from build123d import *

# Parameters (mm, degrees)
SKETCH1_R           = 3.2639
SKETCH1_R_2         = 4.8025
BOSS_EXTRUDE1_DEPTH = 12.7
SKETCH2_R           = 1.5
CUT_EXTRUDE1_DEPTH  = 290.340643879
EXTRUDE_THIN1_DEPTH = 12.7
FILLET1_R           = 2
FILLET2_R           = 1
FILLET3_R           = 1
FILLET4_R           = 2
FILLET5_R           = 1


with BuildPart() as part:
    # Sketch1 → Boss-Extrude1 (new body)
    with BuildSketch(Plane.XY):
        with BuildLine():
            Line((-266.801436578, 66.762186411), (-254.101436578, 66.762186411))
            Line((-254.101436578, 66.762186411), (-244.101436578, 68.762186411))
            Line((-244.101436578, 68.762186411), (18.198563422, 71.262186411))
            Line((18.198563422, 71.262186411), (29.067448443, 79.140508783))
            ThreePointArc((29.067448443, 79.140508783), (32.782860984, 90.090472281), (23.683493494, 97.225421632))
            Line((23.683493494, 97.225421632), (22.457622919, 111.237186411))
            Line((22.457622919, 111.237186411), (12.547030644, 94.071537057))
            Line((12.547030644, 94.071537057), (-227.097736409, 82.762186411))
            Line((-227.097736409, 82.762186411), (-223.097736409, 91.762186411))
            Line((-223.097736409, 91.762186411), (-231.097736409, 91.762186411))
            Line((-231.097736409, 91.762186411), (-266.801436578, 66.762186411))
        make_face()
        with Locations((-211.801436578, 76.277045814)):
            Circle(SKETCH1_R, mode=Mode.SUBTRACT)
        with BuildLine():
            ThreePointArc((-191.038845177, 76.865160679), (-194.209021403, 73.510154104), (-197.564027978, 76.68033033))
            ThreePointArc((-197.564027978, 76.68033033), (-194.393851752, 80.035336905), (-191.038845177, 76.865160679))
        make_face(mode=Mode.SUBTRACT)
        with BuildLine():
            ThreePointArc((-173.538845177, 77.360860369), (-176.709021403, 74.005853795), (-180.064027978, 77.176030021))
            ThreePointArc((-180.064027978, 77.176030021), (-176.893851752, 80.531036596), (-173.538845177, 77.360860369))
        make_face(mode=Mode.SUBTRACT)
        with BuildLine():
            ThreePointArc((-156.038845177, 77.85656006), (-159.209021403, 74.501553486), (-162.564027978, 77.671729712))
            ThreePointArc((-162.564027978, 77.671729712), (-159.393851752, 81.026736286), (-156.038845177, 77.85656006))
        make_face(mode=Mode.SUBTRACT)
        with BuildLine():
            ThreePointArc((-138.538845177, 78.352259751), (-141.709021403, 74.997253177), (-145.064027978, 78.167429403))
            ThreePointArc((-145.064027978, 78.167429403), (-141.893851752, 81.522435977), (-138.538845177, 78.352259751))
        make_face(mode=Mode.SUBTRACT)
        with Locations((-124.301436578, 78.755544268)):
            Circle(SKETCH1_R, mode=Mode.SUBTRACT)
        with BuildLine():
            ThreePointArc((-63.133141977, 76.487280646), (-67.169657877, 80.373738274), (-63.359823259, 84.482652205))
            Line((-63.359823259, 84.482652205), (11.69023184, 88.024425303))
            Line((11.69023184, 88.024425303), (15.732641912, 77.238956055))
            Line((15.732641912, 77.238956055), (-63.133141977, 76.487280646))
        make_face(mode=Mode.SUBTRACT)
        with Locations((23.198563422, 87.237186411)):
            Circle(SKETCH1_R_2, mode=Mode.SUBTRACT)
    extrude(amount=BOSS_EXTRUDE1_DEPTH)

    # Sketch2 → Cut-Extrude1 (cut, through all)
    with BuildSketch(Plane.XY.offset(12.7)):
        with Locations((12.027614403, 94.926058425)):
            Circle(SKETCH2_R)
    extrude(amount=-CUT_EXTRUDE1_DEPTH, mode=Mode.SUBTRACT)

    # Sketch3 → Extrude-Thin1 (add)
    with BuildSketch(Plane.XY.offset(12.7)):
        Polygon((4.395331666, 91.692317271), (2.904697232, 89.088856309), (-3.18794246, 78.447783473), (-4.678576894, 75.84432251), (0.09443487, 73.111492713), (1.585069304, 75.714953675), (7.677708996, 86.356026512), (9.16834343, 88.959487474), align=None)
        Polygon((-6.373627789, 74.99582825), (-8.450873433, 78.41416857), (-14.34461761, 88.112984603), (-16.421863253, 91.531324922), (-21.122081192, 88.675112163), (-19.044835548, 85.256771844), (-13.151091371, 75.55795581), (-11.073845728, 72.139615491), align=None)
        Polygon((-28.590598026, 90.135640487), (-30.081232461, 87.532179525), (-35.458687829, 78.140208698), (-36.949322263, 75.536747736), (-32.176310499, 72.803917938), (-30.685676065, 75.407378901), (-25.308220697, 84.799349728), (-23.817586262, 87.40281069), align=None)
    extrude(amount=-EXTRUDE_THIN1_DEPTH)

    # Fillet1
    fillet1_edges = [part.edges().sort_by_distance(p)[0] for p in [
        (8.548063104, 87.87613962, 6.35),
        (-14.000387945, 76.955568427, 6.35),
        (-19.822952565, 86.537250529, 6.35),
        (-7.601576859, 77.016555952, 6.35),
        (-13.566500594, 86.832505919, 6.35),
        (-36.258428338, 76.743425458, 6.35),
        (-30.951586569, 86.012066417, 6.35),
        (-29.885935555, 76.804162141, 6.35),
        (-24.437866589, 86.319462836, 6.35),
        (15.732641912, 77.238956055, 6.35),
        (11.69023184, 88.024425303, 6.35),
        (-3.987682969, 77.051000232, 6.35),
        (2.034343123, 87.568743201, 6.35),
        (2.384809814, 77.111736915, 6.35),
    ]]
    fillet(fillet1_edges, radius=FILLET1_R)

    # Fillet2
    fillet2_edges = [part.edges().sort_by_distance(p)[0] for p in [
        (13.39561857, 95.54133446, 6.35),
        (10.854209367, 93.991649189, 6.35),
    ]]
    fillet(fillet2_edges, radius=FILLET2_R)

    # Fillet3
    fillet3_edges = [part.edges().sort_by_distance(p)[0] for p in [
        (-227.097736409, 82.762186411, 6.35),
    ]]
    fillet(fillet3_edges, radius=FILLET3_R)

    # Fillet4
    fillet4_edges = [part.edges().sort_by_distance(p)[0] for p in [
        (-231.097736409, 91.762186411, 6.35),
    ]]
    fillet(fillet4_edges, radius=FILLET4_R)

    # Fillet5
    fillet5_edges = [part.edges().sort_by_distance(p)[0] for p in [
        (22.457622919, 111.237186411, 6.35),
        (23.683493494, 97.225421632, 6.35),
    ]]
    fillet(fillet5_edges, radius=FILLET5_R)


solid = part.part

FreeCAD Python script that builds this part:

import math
import FreeCAD as App
import Part
import Sketcher
Q = App.Units.Quantity


def edges_at(feature, points):
    """Names of the edges that pass closest to the given points."""
    edges = feature.Shape.Edges
    near = lambda p: min(range(len(edges)), key=lambda i: edges[i].distToShape(Part.Vertex(*p))[0])
    return sorted({f"Edge{near(p) + 1}" for p in points})

doc = App.newDocument("Part")
body = doc.addObject("PartDesign::Body", "Body")

sketch1 = body.newObject("Sketcher::SketchObject", "Sketch")
sketch1.AttachmentSupport = (doc.getObject("XY_Plane"), [""])
sketch1.MapMode = "FlatFace"
sketch1.addGeometry([
    Part.LineSegment(App.Vector(-266.801437, 66.762186, 0), App.Vector(-254.101437, 66.762186, 0)),
    Part.LineSegment(App.Vector(-254.101437, 66.762186, 0), App.Vector(-244.101437, 68.762186, 0)),
    Part.LineSegment(App.Vector(-244.101437, 68.762186, 0), App.Vector(18.198563, 71.262186, 0)),
    Part.LineSegment(App.Vector(18.198563, 71.262186, 0), App.Vector(29.067448, 79.140509, 0)),
    Part.ArcOfCircle(Part.Circle(App.Vector(23.198563, 87.237186, 0), App.Vector(0, 0, 1), 10), math.radians(-54.063484), math.radians(87.220465)),
    Part.LineSegment(App.Vector(23.683493, 97.225422, 0), App.Vector(22.457623, 111.237186, 0)),
    Part.LineSegment(App.Vector(22.457623, 111.237186, 0), App.Vector(12.547031, 94.071537, 0)),
    Part.LineSegment(App.Vector(12.547031, 94.071537, 0), App.Vector(-227.097736, 82.762186, 0)),
    Part.LineSegment(App.Vector(-227.097736, 82.762186, 0), App.Vector(-223.097736, 91.762186, 0)),
    Part.LineSegment(App.Vector(-223.097736, 91.762186, 0), App.Vector(-231.097736, 91.762186, 0)),
    Part.LineSegment(App.Vector(-231.097736, 91.762186, 0), App.Vector(-266.801437, 66.762186, 0)),
    Part.Circle(App.Vector(-211.801437, 76.277046, 0), App.Vector(0, 0, 1), 3.2639),
    Part.Circle(App.Vector(-194.301437, 76.772746, 0), App.Vector(0, 0, 1), 3.2639),
    Part.ArcOfCircle(Part.Circle(App.Vector(-176.801437, 77.268445, 0), App.Vector(0, 0, 1), 3.2639), math.radians(1.622509), math.radians(181.622509)),
    Part.ArcOfCircle(Part.Circle(App.Vector(-176.801437, 77.268445, 0), App.Vector(0, 0, 1), 3.2639), math.radians(-178.377491), math.radians(1.622509)),
    Part.ArcOfCircle(Part.Circle(App.Vector(-159.301437, 77.764145, 0), App.Vector(0, 0, 1), 3.2639), math.radians(1.622509), math.radians(181.622509)),
    Part.ArcOfCircle(Part.Circle(App.Vector(-159.301437, 77.764145, 0), App.Vector(0, 0, 1), 3.2639), math.radians(-178.377491), math.radians(1.622509)),
    Part.ArcOfCircle(Part.Circle(App.Vector(-141.801437, 78.259845, 0), App.Vector(0, 0, 1), 3.2639), math.radians(1.622509), math.radians(181.622509)),
    Part.ArcOfCircle(Part.Circle(App.Vector(-141.801437, 78.259845, 0), App.Vector(0, 0, 1), 3.2639), math.radians(-178.377491), math.radians(1.622509)),
    Part.Circle(App.Vector(-124.301437, 78.755544, 0), App.Vector(0, 0, 1), 3.2639),
    Part.LineSegment(App.Vector(15.732642, 77.238956, 0), App.Vector(-63.133142, 76.487281, 0)),
    Part.ArcOfCircle(Part.Circle(App.Vector(-63.171265, 80.487099, 0), App.Vector(0, 0, 1), 4), math.radians(92.701906), math.radians(270.546074)),
    Part.LineSegment(App.Vector(-63.359823, 84.482652, 0), App.Vector(11.690232, 88.024425, 0)),
    Part.LineSegment(App.Vector(11.690232, 88.024425, 0), App.Vector(15.732642, 77.238956, 0)),
    Part.Circle(App.Vector(23.198563, 87.237186, 0), App.Vector(0, 0, 1), 4.8025),
], False)
sketch1.addConstraint([
    Sketcher.Constraint("Coincident", 0, 2, 1, 1),
    Sketcher.Constraint("Coincident", 1, 2, 2, 1),
    Sketcher.Constraint("Coincident", 2, 2, 3, 1),
    Sketcher.Constraint("Tangent", 3, 2, 4, 1),
    Sketcher.Constraint("Coincident", 4, 2, 5, 1),
    Sketcher.Constraint("Coincident", 5, 2, 6, 1),
    Sketcher.Constraint("Coincident", 6, 2, 7, 1),
    Sketcher.Constraint("Coincident", 7, 2, 8, 1),
    Sketcher.Constraint("Coincident", 8, 2, 9, 1),
    Sketcher.Constraint("Coincident", 9, 2, 10, 1),
    Sketcher.Constraint("Coincident", 10, 2, 0, 1),
    Sketcher.Constraint("Tangent", 13, 1, 14, 2),
    Sketcher.Constraint("Coincident", 14, 1, 13, 2),
    Sketcher.Constraint("Tangent", 15, 1, 16, 2),
    Sketcher.Constraint("Coincident", 16, 1, 15, 2),
    Sketcher.Constraint("Tangent", 17, 1, 18, 2),
    Sketcher.Constraint("Coincident", 18, 1, 17, 2),
    Sketcher.Constraint("Tangent", 20, 2, 21, 2),
    Sketcher.Constraint("Tangent", 21, 1, 22, 1),
    Sketcher.Constraint("Coincident", 22, 2, 23, 1),
    Sketcher.Constraint("Coincident", 23, 2, 20, 1),
    Sketcher.Constraint("Horizontal", 0),
    Sketcher.Constraint("Horizontal", 9),
    Sketcher.Constraint("Coincident", 24, 3, 4, 3),
    Sketcher.Constraint("Equal", 11, 12),
    Sketcher.Constraint("Equal", 12, 13),
    Sketcher.Constraint("Equal", 14, 15),
    Sketcher.Constraint("Equal", 16, 17),
    Sketcher.Constraint("Equal", 18, 19),
    Sketcher.Constraint("Parallel", 2, 20),
    Sketcher.Constraint("Parallel", 7, 22),
    Sketcher.Constraint("Radius", 4, Q("10 mm")),
    Sketcher.Constraint("Radius", 21, Q("4 mm")),
    Sketcher.Constraint("DistanceX", 9, 2, 9, 1, Q("8 mm")),
    Sketcher.Constraint("Angle", 5, Q("95 deg")),
    Sketcher.Constraint("Angle", 6, Q("-120 deg")),
    Sketcher.Constraint("Angle", 10, Q("-145 deg")),
    Sketcher.Constraint("Diameter", 24, Q("9.605 mm")),
    Sketcher.Constraint("DistanceX", 0, 1, 0, 2, Q("12.7 mm")),
    Sketcher.Constraint("DistanceX", 11, 3, 4, 3, Q("235 mm")),
    Sketcher.Constraint("DistanceX", 11, 3, 13, 3, Q("35 mm")),
    Sketcher.Constraint("DistanceX", 12, 3, 15, 3, Q("35 mm")),
    Sketcher.Constraint("DistanceX", 13, 3, 17, 3, Q("35 mm")),
    Sketcher.Constraint("DistanceX", 15, 3, 19, 3, Q("35 mm")),
    Sketcher.Constraint("DistanceX", 0, 2, 1, 2, Q("10 mm")),
    Sketcher.Constraint("DistanceY", 0, 2, 1, 2, Q("2 mm")),
    Sketcher.Constraint("DistanceX", 2, 2, 24, 3, Q("5 mm")),
    Sketcher.Constraint("DistanceY", 24, 3, 5, 2, Q("24 mm")),
    Sketcher.Constraint("DistanceY", 1, 2, 7, 2, Q("14 mm")),
    Sketcher.Constraint("DistanceX", 7, 2, 8, 2, Q("4 mm")),
    Sketcher.Constraint("DistanceY", 7, 2, 8, 2, Q("9 mm")),
    Sketcher.Constraint("Diameter", 11, Q("6.5278 mm")),
    Sketcher.Constraint("DistanceX", 11, 3, 12, 3, Q("17.5 mm")),
    Sketcher.Constraint("DistanceX", 0, 2, 11, 3, Q("42.3 mm")),
    Sketcher.Constraint("DistanceX", 13, 1, 15, 1, Q("17.5 mm")),
    Sketcher.Constraint("DistanceX", 15, 1, 17, 1, Q("17.5 mm")),
    Sketcher.Constraint("DistanceY", 2, 2, 24, 3, Q("15.975 mm")),
    Sketcher.Constraint("DistanceY", -1, 1, 21, 3, Q("80.487099 mm")),
    Sketcher.Constraint("DistanceY", 11, 3, 12, 3, Q("0.4957 mm")),
    Sketcher.Constraint("DistanceY", 12, 3, 13, 3, Q("0.4957 mm")),
    Sketcher.Constraint("DistanceY", 13, 3, 15, 3, Q("0.4957 mm")),
    Sketcher.Constraint("DistanceY", 15, 3, 17, 3, Q("0.4957 mm")),
    Sketcher.Constraint("DistanceY", 17, 3, 19, 3, Q("0.4957 mm")),
    Sketcher.Constraint("DistanceX", 22, 2, 6, 2, Q("0.856799 mm")),
    Sketcher.Constraint("Distance", 22, Q("75.133581 mm")),
    Sketcher.Constraint("DistanceX", -1, 1, 3, 2, Q("29.067448 mm")),
    Sketcher.Constraint("DistanceY", -1, 1, 3, 2, Q("79.140509 mm")),
    Sketcher.Constraint("DistanceY", -1, 1, 4, 2, Q("97.225422 mm")),
    Sketcher.Constraint("DistanceX", -1, 1, 6, 2, Q("12.547031 mm")),
    Sketcher.Constraint("DistanceY", -1, 1, 13, 1, Q("77.36086 mm")),
    Sketcher.Constraint("DistanceY", -1, 1, 14, 1, Q("77.17603 mm")),
    Sketcher.Constraint("DistanceY", -1, 1, 16, 1, Q("77.67173 mm")),
    Sketcher.Constraint("DistanceY", -1, 1, 18, 1, Q("78.167429 mm")),
    Sketcher.Constraint("DistanceX", 20, 2, -1, 1, Q("63.133142 mm")),
    Sketcher.Constraint("DistanceX", -1, 1, 23, 2, Q("15.732642 mm")),
    Sketcher.Constraint("DistanceY", 11, 3, 4, 3, Q("10.960141 mm")),
])
pad1 = body.newObject("PartDesign::Pad", "Pad")
pad1.Profile = sketch1
pad1.Length = 12.7

sketch2 = body.newObject("Sketcher::SketchObject", "Sketch001")
sketch2.AttachmentSupport = (doc.getObject("XY_Plane"), [""])
sketch2.MapMode = "FlatFace"
sketch2.AttachmentOffset = App.Placement(App.Vector(0, 0, 12.7), App.Rotation())
sketch2.addGeometry(Part.Circle(App.Vector(12.027614, 94.926058, 0), App.Vector(0, 0, 1), 1.5), False)
sketch2.addConstraint([
    Sketcher.Constraint("Diameter", 0, Q("3 mm")),
    Sketcher.Constraint("DistanceY", -1, 1, 0, 3, Q("94.926058 mm")),
    Sketcher.Constraint("DistanceX", -1, 1, 0, 3, Q("12.027614 mm")),
])
pocket1 = body.newObject("PartDesign::Pocket", "Pocket")
pocket1.Profile = sketch2
pocket1.Type = "ThroughAll"

sketch3 = body.newObject("Sketcher::SketchObject", "Sketch002")
sketch3.AttachmentSupport = (doc.getObject("XY_Plane"), [""])
sketch3.MapMode = "FlatFace"
sketch3.AttachmentOffset = App.Placement(App.Vector(0, 0, 12.7), App.Rotation())
sketch3.addGeometry([
    Part.LineSegment(App.Vector(4.395332, 91.692317, 0), App.Vector(2.904697, 89.088856, 0)),
    Part.LineSegment(App.Vector(2.904697, 89.088856, 0), App.Vector(-3.187942, 78.447783, 0)),
    Part.LineSegment(App.Vector(-3.187942, 78.447783, 0), App.Vector(-4.678577, 75.844323, 0)),
    Part.LineSegment(App.Vector(-4.678577, 75.844323, 0), App.Vector(0.094435, 73.111493, 0)),
    Part.LineSegment(App.Vector(0.094435, 73.111493, 0), App.Vector(1.585069, 75.714954, 0)),
    Part.LineSegment(App.Vector(1.585069, 75.714954, 0), App.Vector(7.677709, 86.356027, 0)),
    Part.LineSegment(App.Vector(7.677709, 86.356027, 0), App.Vector(9.168343, 88.959487, 0)),
    Part.LineSegment(App.Vector(9.168343, 88.959487, 0), App.Vector(4.395332, 91.692317, 0)),
    Part.LineSegment(App.Vector(-6.373628, 74.995828, 0), App.Vector(-8.450873, 78.414169, 0)),
    Part.LineSegment(App.Vector(-8.450873, 78.414169, 0), App.Vector(-14.344618, 88.112985, 0)),
    Part.LineSegment(App.Vector(-14.344618, 88.112985, 0), App.Vector(-16.421863, 91.531325, 0)),
    Part.LineSegment(App.Vector(-16.421863, 91.531325, 0), App.Vector(-21.122081, 88.675112, 0)),
    Part.LineSegment(App.Vector(-21.122081, 88.675112, 0), App.Vector(-19.044836, 85.256772, 0)),
    Part.LineSegment(App.Vector(-19.044836, 85.256772, 0), App.Vector(-13.151091, 75.557956, 0)),
    Part.LineSegment(App.Vector(-13.151091, 75.557956, 0), App.Vector(-11.073846, 72.139615, 0)),
    Part.LineSegment(App.Vector(-11.073846, 72.139615, 0), App.Vector(-6.373628, 74.995828, 0)),
    Part.LineSegment(App.Vector(-28.590598, 90.13564, 0), App.Vector(-30.081232, 87.53218, 0)),
    Part.LineSegment(App.Vector(-30.081232, 87.53218, 0), App.Vector(-35.458688, 78.140209, 0)),
    Part.LineSegment(App.Vector(-35.458688, 78.140209, 0), App.Vector(-36.949322, 75.536748, 0)),
    Part.LineSegment(App.Vector(-36.949322, 75.536748, 0), App.Vector(-32.17631, 72.803918, 0)),
    Part.LineSegment(App.Vector(-32.17631, 72.803918, 0), App.Vector(-30.685676, 75.407379, 0)),
    Part.LineSegment(App.Vector(-30.685676, 75.407379, 0), App.Vector(-25.308221, 84.79935, 0)),
    Part.LineSegment(App.Vector(-25.308221, 84.79935, 0), App.Vector(-23.817586, 87.402811, 0)),
    Part.LineSegment(App.Vector(-23.817586, 87.402811, 0), App.Vector(-28.590598, 90.13564, 0)),
], False)
sketch3.addConstraint([
    Sketcher.Constraint("Coincident", 0, 2, 1, 1),
    Sketcher.Constraint("Coincident", 1, 2, 2, 1),
    Sketcher.Constraint("Coincident", 2, 2, 3, 1),
    Sketcher.Constraint("Coincident", 3, 2, 4, 1),
    Sketcher.Constraint("Coincident", 4, 2, 5, 1),
    Sketcher.Constraint("Coincident", 5, 2, 6, 1),
    Sketcher.Constraint("Coincident", 6, 2, 7, 1),
    Sketcher.Constraint("Coincident", 7, 2, 0, 1),
    Sketcher.Constraint("Coincident", 8, 2, 9, 1),
    Sketcher.Constraint("Coincident", 9, 2, 10, 1),
    Sketcher.Constraint("Coincident", 10, 2, 11, 1),
    Sketcher.Constraint("Coincident", 11, 2, 12, 1),
    Sketcher.Constraint("Coincident", 12, 2, 13, 1),
    Sketcher.Constraint("Coincident", 13, 2, 14, 1),
    Sketcher.Constraint("Coincident", 14, 2, 15, 1),
    Sketcher.Constraint("Coincident", 15, 2, 8, 1),
    Sketcher.Constraint("Coincident", 16, 2, 17, 1),
    Sketcher.Constraint("Coincident", 17, 2, 18, 1),
    Sketcher.Constraint("Coincident", 18, 2, 19, 1),
    Sketcher.Constraint("Coincident", 19, 2, 20, 1),
    Sketcher.Constraint("Coincident", 20, 2, 21, 1),
    Sketcher.Constraint("Coincident", 21, 2, 22, 1),
    Sketcher.Constraint("Coincident", 22, 2, 23, 1),
    Sketcher.Constraint("Coincident", 23, 2, 16, 1),
    Sketcher.Constraint("Parallel", 0, 1),
    Sketcher.Constraint("Parallel", 1, 2),
    Sketcher.Constraint("Perpendicular", 2, 3),
    Sketcher.Constraint("Perpendicular", 3, 4),
    Sketcher.Constraint("Parallel", 4, 5),
    Sketcher.Constraint("Parallel", 5, 6),
    Sketcher.Constraint("Perpendicular", 6, 7),
    Sketcher.Constraint("Parallel", 8, 9),
    Sketcher.Constraint("Parallel", 9, 10),
    Sketcher.Constraint("Perpendicular", 10, 11),
    Sketcher.Constraint("Perpendicular", 11, 12),
    Sketcher.Constraint("Parallel", 12, 13),
    Sketcher.Constraint("Parallel", 13, 14),
    Sketcher.Constraint("Perpendicular", 14, 15),
    Sketcher.Constraint("Perpendicular", 7, 16),
    Sketcher.Constraint("Parallel", 16, 17),
    Sketcher.Constraint("Parallel", 17, 18),
    Sketcher.Constraint("Perpendicular", 18, 19),
    Sketcher.Constraint("Perpendicular", 19, 20),
    Sketcher.Constraint("Parallel", 20, 21),
    Sketcher.Constraint("Parallel", 21, 22),
    Sketcher.Constraint("Perpendicular", 22, 23),
    Sketcher.Constraint("Equal", 0, 2),
    Sketcher.Constraint("Equal", 2, 4),
    Sketcher.Constraint("Equal", 1, 5),
    Sketcher.Constraint("Equal", 8, 10),
    Sketcher.Constraint("Equal", 7, 11),
    Sketcher.Constraint("Equal", 10, 12),
    Sketcher.Constraint("Equal", 9, 13),
    Sketcher.Constraint("Equal", 6, 16),
    Sketcher.Constraint("Equal", 16, 18),
    Sketcher.Constraint("Equal", 15, 19),
    Sketcher.Constraint("Equal", 18, 20),
    Sketcher.Constraint("Equal", 17, 21),
    Sketcher.Constraint("Distance", 0, Q("3 mm")),
    Sketcher.Constraint("Distance", 8, Q("4 mm")),
    Sketcher.Constraint("Distance", 3, Q("5.5 mm")),
    Sketcher.Constraint("DistanceX", 23, 2, -1, 1, Q("28.590598 mm")),
    Sketcher.Constraint("DistanceY", 1, 2, 9, 2, Q("9.665201 mm")),
    Sketcher.Constraint("DistanceY", 20, 2, 16, 2, Q("12.124801 mm")),
    Sketcher.Constraint("DistanceY", 22, 2, 11, 2, Q("1.272301 mm")),
    Sketcher.Constraint("Distance", 1, Q("12.261839 mm")),
    Sketcher.Constraint("DistanceX", -1, 1, 4, 2, Q("1.585069 mm")),
    Sketcher.Constraint("DistanceX", -1, 1, 5, 2, Q("7.677709 mm")),
    Sketcher.Constraint("DistanceY", -1, 1, 8, 2, Q("78.414169 mm")),
    Sketcher.Constraint("DistanceX", 11, 2, -1, 1, Q("21.122081 mm")),
    Sketcher.Constraint("DistanceY", -1, 1, 12, 2, Q("85.256772 mm")),
    Sketcher.Constraint("DistanceX", 13, 2, -1, 1, Q("13.151091 mm")),
])
pad2 = body.newObject("PartDesign::Pad", "Pad001")
pad2.Profile = sketch3
pad2.Length = 12.7
pad2.Reversed = True
doc.recompute()

fillet = body.newObject("PartDesign::Fillet", "Fillet")
fillet.Base = (pad2, edges_at(pad2, [
    (8.548, 87.876, 6.35),
    (-14, 76.956, 6.35),
    (-19.823, 86.537, 6.35),
    (-7.602, 77.017, 6.35),
    (-13.567, 86.833, 6.35),
    (-36.258, 76.743, 6.35),
    (-30.952, 86.012, 6.35),
    (-29.886, 76.804, 6.35),
    (-24.438, 86.319, 6.35),
    (15.733, 77.239, 6.35),
    (11.69, 88.024, 6.35),
    (-3.988, 77.051, 6.35),
    (2.034, 87.569, 6.35),
    (2.385, 77.112, 6.35),
]))
fillet.Radius = 2
doc.recompute()

fillet2 = body.newObject("PartDesign::Fillet", "Fillet001")
fillet2.Base = (fillet, edges_at(fillet, [(13.396, 95.541, 6.35), (10.854, 93.992, 6.35)]))
fillet2.Radius = 1
doc.recompute()

fillet3 = body.newObject("PartDesign::Fillet", "Fillet002")
fillet3.Base = (fillet2, edges_at(fillet2, [(-227.098, 82.762, 6.35)]))
fillet3.Radius = 1
doc.recompute()

fillet4 = body.newObject("PartDesign::Fillet", "Fillet003")
fillet4.Base = (fillet3, edges_at(fillet3, [(-231.098, 91.762, 6.35)]))
fillet4.Radius = 2
doc.recompute()

fillet5 = body.newObject("PartDesign::Fillet", "Fillet004")
fillet5.Base = (fillet4, edges_at(fillet4, [(22.458, 111.237, 6.35), (23.683, 97.225, 6.35)]))
fillet5.Radius = 1

doc.recompute()
